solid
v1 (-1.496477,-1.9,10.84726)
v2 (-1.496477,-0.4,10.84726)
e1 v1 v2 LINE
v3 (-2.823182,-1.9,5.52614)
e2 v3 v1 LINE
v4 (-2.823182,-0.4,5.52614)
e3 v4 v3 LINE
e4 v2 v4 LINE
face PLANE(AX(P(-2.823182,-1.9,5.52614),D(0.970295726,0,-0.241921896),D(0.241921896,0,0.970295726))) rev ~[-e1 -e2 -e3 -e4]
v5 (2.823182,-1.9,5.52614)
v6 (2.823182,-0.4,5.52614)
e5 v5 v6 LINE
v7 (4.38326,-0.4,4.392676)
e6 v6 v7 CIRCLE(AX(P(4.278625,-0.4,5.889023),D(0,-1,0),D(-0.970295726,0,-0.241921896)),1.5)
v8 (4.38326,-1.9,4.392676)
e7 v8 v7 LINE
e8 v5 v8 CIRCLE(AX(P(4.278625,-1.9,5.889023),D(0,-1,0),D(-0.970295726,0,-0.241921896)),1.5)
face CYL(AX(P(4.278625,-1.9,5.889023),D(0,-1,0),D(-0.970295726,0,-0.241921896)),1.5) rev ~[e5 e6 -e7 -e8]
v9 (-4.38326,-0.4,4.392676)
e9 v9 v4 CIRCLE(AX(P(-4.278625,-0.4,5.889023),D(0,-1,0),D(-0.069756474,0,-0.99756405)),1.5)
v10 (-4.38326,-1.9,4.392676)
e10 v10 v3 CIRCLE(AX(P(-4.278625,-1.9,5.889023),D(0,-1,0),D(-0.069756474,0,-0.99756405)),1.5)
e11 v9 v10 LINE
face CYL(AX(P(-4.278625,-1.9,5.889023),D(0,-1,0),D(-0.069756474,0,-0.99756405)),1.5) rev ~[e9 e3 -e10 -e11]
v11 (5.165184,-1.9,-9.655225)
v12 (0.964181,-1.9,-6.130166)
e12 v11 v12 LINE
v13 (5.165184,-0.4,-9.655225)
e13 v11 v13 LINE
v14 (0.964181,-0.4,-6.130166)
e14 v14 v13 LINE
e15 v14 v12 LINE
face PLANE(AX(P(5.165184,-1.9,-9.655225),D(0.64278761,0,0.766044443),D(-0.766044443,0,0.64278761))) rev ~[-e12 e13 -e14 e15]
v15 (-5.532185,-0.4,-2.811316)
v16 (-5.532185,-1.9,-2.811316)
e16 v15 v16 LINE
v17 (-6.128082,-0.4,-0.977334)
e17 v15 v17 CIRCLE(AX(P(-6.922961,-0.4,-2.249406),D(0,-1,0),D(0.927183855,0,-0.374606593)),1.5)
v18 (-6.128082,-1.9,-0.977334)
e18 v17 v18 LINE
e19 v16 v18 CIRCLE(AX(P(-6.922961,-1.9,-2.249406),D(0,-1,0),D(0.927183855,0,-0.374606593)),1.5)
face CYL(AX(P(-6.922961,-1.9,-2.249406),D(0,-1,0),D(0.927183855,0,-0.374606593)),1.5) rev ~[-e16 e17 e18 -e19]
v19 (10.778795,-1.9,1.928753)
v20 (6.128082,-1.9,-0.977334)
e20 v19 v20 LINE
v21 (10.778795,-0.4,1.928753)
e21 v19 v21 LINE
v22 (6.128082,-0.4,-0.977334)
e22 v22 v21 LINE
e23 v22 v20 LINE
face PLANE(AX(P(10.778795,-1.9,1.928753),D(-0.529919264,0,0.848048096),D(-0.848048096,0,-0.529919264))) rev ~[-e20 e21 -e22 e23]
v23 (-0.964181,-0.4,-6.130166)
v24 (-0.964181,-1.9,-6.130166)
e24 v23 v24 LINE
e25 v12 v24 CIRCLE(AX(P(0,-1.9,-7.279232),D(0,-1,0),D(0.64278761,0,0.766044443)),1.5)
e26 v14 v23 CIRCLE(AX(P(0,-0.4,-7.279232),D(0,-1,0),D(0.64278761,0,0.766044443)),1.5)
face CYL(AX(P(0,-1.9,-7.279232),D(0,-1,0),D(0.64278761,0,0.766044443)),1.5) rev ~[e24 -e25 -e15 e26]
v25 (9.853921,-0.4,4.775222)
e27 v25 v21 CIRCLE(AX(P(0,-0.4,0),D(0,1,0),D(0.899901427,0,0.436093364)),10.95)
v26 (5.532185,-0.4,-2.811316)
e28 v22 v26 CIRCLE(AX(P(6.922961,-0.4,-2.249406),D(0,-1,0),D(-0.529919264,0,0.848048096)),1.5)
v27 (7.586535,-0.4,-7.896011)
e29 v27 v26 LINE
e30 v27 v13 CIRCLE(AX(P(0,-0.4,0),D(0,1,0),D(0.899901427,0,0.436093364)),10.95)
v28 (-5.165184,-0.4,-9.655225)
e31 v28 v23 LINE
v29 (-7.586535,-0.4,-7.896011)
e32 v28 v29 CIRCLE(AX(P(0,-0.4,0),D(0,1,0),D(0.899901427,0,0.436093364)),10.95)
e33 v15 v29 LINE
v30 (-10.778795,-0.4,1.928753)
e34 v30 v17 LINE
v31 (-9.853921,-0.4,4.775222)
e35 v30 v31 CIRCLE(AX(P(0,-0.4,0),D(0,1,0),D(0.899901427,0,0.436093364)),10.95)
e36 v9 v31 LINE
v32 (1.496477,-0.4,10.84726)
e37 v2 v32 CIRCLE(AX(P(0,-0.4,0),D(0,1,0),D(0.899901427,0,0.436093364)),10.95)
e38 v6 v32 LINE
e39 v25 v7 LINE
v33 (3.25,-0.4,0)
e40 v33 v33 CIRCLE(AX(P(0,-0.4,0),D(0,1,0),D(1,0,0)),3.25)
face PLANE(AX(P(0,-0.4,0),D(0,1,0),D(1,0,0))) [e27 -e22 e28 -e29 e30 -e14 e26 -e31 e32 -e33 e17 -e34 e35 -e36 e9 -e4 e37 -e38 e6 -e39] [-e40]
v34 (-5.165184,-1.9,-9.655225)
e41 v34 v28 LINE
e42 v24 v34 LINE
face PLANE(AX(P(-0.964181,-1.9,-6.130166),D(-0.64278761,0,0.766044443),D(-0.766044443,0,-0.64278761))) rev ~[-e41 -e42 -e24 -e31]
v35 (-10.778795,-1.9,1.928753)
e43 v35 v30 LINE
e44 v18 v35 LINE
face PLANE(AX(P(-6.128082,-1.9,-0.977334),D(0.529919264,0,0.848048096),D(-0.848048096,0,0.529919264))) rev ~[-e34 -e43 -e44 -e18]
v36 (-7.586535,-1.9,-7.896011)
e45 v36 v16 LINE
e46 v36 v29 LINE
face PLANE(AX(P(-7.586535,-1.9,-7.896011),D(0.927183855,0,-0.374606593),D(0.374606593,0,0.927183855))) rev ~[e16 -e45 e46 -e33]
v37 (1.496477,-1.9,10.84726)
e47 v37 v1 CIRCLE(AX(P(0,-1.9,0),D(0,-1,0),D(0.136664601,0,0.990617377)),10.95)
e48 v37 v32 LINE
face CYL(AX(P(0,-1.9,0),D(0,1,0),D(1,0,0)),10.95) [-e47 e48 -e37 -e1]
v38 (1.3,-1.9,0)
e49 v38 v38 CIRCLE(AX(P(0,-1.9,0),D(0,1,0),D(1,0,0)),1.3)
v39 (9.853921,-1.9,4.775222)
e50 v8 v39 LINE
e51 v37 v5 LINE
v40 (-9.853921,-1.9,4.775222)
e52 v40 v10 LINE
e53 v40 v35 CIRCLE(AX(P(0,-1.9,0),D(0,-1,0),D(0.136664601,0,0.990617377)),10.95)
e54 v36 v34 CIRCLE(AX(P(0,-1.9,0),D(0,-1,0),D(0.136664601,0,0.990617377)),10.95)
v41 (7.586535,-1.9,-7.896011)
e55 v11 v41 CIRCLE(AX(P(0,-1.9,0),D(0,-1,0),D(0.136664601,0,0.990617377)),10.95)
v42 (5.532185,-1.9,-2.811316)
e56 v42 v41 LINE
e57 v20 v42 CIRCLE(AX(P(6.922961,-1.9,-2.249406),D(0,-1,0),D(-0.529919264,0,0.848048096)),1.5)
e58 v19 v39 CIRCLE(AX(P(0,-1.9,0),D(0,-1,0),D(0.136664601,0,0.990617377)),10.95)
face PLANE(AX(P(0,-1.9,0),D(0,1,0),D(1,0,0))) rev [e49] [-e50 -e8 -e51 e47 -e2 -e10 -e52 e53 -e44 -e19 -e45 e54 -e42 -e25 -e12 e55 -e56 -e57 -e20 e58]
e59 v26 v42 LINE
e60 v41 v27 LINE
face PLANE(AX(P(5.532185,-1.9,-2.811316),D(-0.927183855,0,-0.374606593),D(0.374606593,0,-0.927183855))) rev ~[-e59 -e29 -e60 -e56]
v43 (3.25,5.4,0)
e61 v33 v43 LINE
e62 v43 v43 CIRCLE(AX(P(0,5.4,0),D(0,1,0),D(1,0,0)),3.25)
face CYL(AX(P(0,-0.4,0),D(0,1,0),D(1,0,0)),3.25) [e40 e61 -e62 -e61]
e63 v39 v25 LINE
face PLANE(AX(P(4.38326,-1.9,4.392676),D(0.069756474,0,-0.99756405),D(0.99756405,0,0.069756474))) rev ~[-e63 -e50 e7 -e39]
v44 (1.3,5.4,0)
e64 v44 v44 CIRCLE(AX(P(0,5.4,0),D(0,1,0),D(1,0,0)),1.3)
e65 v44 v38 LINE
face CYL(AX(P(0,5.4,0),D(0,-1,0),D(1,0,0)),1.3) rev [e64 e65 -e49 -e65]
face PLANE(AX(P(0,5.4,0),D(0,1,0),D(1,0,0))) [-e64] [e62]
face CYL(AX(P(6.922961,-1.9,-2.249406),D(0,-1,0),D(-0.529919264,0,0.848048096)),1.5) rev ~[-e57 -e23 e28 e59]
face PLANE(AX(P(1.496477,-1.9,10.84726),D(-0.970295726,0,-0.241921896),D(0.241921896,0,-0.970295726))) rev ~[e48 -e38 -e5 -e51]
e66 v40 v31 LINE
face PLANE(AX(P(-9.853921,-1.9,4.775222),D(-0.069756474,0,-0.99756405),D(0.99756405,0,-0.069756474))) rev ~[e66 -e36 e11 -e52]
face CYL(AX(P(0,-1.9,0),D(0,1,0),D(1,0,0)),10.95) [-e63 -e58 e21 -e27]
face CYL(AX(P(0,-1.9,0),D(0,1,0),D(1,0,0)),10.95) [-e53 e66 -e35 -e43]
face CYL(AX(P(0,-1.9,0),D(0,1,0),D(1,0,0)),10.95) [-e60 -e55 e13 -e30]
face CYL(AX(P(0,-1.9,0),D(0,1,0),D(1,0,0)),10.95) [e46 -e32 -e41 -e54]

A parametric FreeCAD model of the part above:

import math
import FreeCAD as App
import Part
import Sketcher

V = App.Vector
Q = App.Units.Quantity


def add_polygon(sketch, points):
    """Adds a closed chain of lines whose ends are joined by coincident constraints."""
    first, n = sketch.GeometryCount, len(points)
    for a, b in zip(points, points[1:] + points[:1]):
        sketch.addGeometry(Part.LineSegment(App.Vector(*a, 0), App.Vector(*b, 0)), False)
    for i in range(n):
        sketch.addConstraint(Sketcher.Constraint("Coincident", first + i, 2, first + (i + 1) % n, 1))

doc = App.newDocument("Part")
body = doc.addObject("PartDesign::Body", "Body")

# Sketch on XY plane
sketch1 = body.newObject("Sketcher::SketchObject", "Sketch")
sketch1.AttachmentSupport = (doc.getObject("XY_Plane"), [""])
sketch1.MapMode = "FlatFace"
add_polygon(sketch1, [(3.2, 5.4), (1.3, 5.4), (1.3, -1.9), (10.9, -1.9), (10.9, -0.4), (3.2, -0.4)])  # lines 0-5
sketch1.addConstraint(Sketcher.Constraint("Horizontal", 0))
sketch1.addConstraint(Sketcher.Constraint("Vertical", 1))
sketch1.addConstraint(Sketcher.Constraint("Horizontal", 2))
sketch1.addConstraint(Sketcher.Constraint("Vertical", 3))
sketch1.addConstraint(Sketcher.Constraint("Horizontal", 4))
sketch1.addConstraint(Sketcher.Constraint("Vertical", 5))
sketch1.addConstraint(Sketcher.Constraint("DistanceX", 4, 2, 4, 1, Q("7.7 mm")))
sketch1.addConstraint(Sketcher.Constraint("DistanceY", 1, 2, 1, 1, Q("7.3 mm")))
sketch1.addConstraint(Sketcher.Constraint("DistanceY", 3, 1, 3, 2, Q("1.5 mm")))
sketch1.addConstraint(Sketcher.Constraint("DistanceX", 0, 2, 0, 1, Q("1.95 mm")))
sketch1.addConstraint(Sketcher.Constraint("DistanceX", -1, 1, 0, 2, Q("1.3 mm")))
sketch1.addConstraint(Sketcher.Constraint("DistanceY", -1, 1, 0, 2, Q("5.4 mm")))
revolution = body.newObject("PartDesign::Revolution", "Revolution")
revolution.Profile = sketch1
revolution.ReferenceAxis = (sketch1, ["V_Axis"])
revolution.Angle = 360

# Sketch on XZ plane
sketch2 = body.newObject("Sketcher::SketchObject", "Sketch001")
sketch2.AttachmentSupport = (doc.getObject("XZ_Plane"), [""])
sketch2.MapMode = "FlatFace"
sketch2.AttachmentOffset = App.Placement(V(0, 0, 1.9), App.Rotation())
sketch2.addGeometry(Part.LineSegment(V(1.5, 10.8, 0), V(2.8, 5.5, 0)), False)
sketch2.addGeometry(Part.ArcOfCircle(Part.Circle(V(4.3, 5.9, 0), V(0, 0, 1), 1.5), math.radians(-166), math.radians(-86)), False)
sketch2.addGeometry(Part.LineSegment(V(4.4, 4.4, 0), V(9.9, 4.8, 0)), False)
sketch2.addGeometry(Part.ArcOfCircle(Part.Circle(V(0, 0, 0), V(0, 0, 1), 10.9), math.radians(26), math.radians(82)), False)
sketch2.addConstraint(Sketcher.Constraint("Tangent", 0, 2, 1, 1))
sketch2.addConstraint(Sketcher.Constraint("Tangent", 1, 2, 2, 1))
sketch2.addConstraint(Sketcher.Constraint("Coincident", 2, 2, 3, 1))
sketch2.addConstraint(Sketcher.Constraint("Coincident", 3, 2, 0, 1))
sketch2.addConstraint(Sketcher.Constraint("Coincident", 3, 3, -1, 1))
sketch2.addConstraint(Sketcher.Constraint("Equal", 0, 2))
sketch2.addConstraint(Sketcher.Constraint("Radius", 1, Q("1.5 mm")))
sketch2.addConstraint(Sketcher.Constraint("Angle", 0, Q("-76 deg")))
sketch2.addConstraint(Sketcher.Constraint("Angle", 2, Q("4 deg")))
sketch2.addConstraint(Sketcher.Constraint("Radius", 3, Q("10.95 mm")))
sketch2.addConstraint(Sketcher.Constraint("DistanceY", 2, 2, 1, 3, Q("1.1138 mm")))
pocket1 = body.newObject("PartDesign::Pocket", "Pocket")
pocket1.Profile = sketch2
pocket1.Type = "ThroughAll"
pocket1.Midplane = True
doc.recompute()

polarpattern = body.newObject("PartDesign::PolarPattern", "PolarPattern")
polarpattern.Originals = [pocket1]
polarpattern.Axis = (doc.getObject("Y_Axis"), [""])
polarpattern.Angle = 360
polarpattern.Occurrences = 5
body.Tip = polarpattern

doc.recompute()
